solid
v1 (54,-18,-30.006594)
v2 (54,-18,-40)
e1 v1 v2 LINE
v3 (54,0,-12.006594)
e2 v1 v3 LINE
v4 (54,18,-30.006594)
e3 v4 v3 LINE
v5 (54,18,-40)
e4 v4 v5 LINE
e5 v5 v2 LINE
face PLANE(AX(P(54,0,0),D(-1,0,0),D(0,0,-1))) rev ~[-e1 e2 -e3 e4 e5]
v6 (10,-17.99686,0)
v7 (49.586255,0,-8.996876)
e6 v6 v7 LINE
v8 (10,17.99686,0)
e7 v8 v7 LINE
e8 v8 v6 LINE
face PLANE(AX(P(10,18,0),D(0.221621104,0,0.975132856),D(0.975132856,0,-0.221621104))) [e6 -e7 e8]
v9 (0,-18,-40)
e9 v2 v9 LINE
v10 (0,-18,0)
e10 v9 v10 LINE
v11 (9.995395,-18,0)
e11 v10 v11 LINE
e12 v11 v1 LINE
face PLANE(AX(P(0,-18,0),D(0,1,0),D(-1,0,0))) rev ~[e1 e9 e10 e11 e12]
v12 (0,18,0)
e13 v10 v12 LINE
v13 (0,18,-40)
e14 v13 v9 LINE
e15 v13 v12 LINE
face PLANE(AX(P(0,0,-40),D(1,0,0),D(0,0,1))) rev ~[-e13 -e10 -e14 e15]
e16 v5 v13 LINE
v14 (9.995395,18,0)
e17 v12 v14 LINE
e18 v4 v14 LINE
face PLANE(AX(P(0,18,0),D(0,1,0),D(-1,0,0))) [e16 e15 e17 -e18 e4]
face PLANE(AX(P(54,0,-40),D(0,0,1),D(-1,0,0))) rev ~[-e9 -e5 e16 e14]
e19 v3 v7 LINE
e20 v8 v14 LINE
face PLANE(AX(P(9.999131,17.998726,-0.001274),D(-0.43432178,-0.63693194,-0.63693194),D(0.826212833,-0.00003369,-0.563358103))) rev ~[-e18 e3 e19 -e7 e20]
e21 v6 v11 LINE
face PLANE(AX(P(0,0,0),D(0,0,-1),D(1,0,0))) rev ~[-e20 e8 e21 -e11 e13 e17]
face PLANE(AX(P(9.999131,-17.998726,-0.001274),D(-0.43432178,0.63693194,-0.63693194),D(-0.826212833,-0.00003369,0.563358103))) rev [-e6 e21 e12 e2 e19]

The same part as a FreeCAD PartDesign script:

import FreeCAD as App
import Part
import Sketcher

V = App.Vector

doc = App.newDocument("Part")
body = doc.addObject("PartDesign::Body", "Body")

sketch1 = body.newObject("Sketcher::SketchObject", "Sketch")
sketch1.AttachmentSupport = (doc.getObject("XZ_Plane"), [""])
sketch1.MapMode = "FlatFace"
sketch1.addGeometry([
    Part.LineSegment(V(0, -40, 0), V(0, 0, 0)),
    Part.LineSegment(V(0, 0, 0), V(54, 0, 0)),
    Part.LineSegment(V(54, 0, 0), V(54, -40, 0)),
    Part.LineSegment(V(54, -40, 0), V(0, -40, 0)),
], False)
sketch1.addConstraint([
    Sketcher.Constraint("Coincident", 0, 2, 1, 1),
    Sketcher.Constraint("Coincident", 1, 2, 2, 1),
    Sketcher.Constraint("Coincident", 2, 2, 3, 1),
    Sketcher.Constraint("Coincident", 3, 2, 0, 1),
    Sketcher.Constraint("Vertical", 0),
    Sketcher.Constraint("Horizontal", 1),
    Sketcher.Constraint("Vertical", 2),
    Sketcher.Constraint("Horizontal", 3),
    Sketcher.Constraint("Coincident", 0, 2, -1, 1),
    Sketcher.Constraint("DistanceX", 1, 1, 1, 2, 54.0),
    Sketcher.Constraint("DistanceY", 0, 1, 0, 2, 40.0),
])
pad1 = body.newObject("PartDesign::Pad", "Pad")
pad1.Profile = sketch1
pad1.Length = 36
pad1.Midplane = True

sketch2 = body.newObject("Sketcher::SketchObject", "Sketch001")
sketch2.AttachmentSupport = (doc.getObject("XZ_Plane"), [""])
sketch2.MapMode = "FlatFace"
sketch2.AttachmentOffset = App.Placement(V(0, 0, -18), App.Rotation())
sketch2.addGeometry([
    Part.LineSegment(V(54, -10, 0), V(10, 0, 0)),
    Part.LineSegment(V(10, 0, 0), V(54, 0, 0)),
    Part.LineSegment(V(54, 0, 0), V(54, -10, 0)),
], False)
sketch2.addConstraint([
    Sketcher.Constraint("Coincident", 0, 2, 1, 1),
    Sketcher.Constraint("Coincident", 1, 2, 2, 1),
    Sketcher.Constraint("Coincident", 2, 2, 0, 1),
    Sketcher.Constraint("Horizontal", 1),
    Sketcher.Constraint("Vertical", 2),
    Sketcher.Constraint("PointOnObject", 0, 2, -1),
    Sketcher.Constraint("DistanceY", 2, 2, 2, 1, 10.0),
    Sketcher.Constraint("DistanceX", -1, 1, 0, 2, 10.0),
    Sketcher.Constraint("DistanceX", 1, 1, 1, 2, 44.0),
])
pocket1 = body.newObject("PartDesign::Pocket", "Pocket")
pocket1.Profile = sketch2
pocket1.Length = 40
pocket1.Reversed = True

sketch3 = body.newObject("Sketcher::SketchObject", "Sketch002")
sketch3.Placement = App.Placement(V(10, 18, 0), App.Rotation(V(0.826212833, -0.00003369, -0.563358103), V(0.358799311, -0.770920037, 0.526255975), V(-0.43432178, -0.63693194, -0.63693194), "ZXY"))
sketch3.addGeometry([
    Part.LineSegment(V(-15, 29, 0), V(-15, -12, 0)),
    Part.LineSegment(V(-15, -12, 0), V(94, -12, 0)),
    Part.LineSegment(V(94, -12, 0), V(94, 29, 0)),
    Part.LineSegment(V(94, 29, 0), V(-15, 29, 0)),
], False)
sketch3.addConstraint([
    Sketcher.Constraint("Coincident", 0, 2, 1, 1),
    Sketcher.Constraint("Coincident", 1, 2, 2, 1),
    Sketcher.Constraint("Coincident", 2, 2, 3, 1),
    Sketcher.Constraint("Coincident", 3, 2, 0, 1),
    Sketcher.Constraint("Vertical", 0),
    Sketcher.Constraint("Horizontal", 1),
    Sketcher.Constraint("Vertical", 2),
    Sketcher.Constraint("Horizontal", 3),
    Sketcher.Constraint("DistanceX", 1, 1, 1, 2, 108.8713),
    Sketcher.Constraint("DistanceY", 0, 2, 0, 1, 41.1384),
    Sketcher.Constraint("DistanceX", -1, 1, 1, 2, 93.717),
    Sketcher.Constraint("DistanceY", 0, 2, -1, 1, 12.3218),
])
pocket2 = body.newObject("PartDesign::Pocket", "Pocket001")
pocket2.Profile = sketch3
pocket2.Length = 40
doc.recompute()

mirrored = body.newObject("PartDesign::Mirrored", "Mirrored")
mirrored.Originals = [pocket2]
mirrored.MirrorPlane = (doc.getObject("XZ_Plane"), [""])
body.Tip = mirrored

doc.recompute()
